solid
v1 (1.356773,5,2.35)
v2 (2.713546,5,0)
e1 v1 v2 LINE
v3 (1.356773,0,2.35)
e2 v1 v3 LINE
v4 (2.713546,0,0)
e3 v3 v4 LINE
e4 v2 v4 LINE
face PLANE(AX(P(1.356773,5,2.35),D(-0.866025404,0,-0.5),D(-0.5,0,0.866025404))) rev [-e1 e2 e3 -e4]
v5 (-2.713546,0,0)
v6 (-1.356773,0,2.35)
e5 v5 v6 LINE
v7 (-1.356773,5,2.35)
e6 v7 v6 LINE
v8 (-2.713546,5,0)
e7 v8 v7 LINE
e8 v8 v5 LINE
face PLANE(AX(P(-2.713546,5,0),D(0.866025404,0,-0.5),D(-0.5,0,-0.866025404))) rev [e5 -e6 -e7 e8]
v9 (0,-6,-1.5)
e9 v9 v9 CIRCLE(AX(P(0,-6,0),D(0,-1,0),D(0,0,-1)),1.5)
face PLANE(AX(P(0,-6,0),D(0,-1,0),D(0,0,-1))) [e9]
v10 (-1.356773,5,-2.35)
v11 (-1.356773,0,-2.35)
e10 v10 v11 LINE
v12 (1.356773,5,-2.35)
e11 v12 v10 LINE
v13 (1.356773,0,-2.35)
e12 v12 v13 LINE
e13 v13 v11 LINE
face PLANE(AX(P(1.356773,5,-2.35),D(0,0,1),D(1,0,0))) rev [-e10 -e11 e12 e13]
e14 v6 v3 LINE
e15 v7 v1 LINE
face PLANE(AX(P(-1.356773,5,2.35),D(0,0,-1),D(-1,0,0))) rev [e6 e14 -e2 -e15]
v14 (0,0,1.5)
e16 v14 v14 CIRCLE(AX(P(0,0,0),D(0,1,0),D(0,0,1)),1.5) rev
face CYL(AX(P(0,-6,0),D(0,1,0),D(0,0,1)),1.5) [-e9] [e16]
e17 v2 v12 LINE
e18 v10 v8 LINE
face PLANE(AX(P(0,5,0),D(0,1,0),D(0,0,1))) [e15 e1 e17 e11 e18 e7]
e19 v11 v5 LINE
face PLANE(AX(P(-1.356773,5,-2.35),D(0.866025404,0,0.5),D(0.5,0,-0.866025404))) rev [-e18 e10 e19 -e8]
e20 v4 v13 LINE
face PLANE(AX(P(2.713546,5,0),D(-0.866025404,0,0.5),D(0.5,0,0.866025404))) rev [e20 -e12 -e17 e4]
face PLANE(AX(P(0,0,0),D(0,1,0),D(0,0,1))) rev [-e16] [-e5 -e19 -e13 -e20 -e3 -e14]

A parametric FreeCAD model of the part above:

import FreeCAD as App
import Part
import Sketcher
Q = App.Units.Quantity

doc = App.newDocument("Part")
body = doc.addObject("PartDesign::Body", "Body")

sketch1 = doc.addObject("Sketcher::SketchObject", "Sketch")
body.addObject(sketch1)
sketch1.AttachmentSupport = (doc.XZ_Plane, [""])
sketch1.MapMode = "FlatFace"
sketch1.addGeometry([
    Part.LineSegment(App.Vector(-1.356773, -2.35, 0), App.Vector(-2.713546, 0, 0)),
    Part.LineSegment(App.Vector(-2.713546, 0, 0), App.Vector(-1.356773, 2.35, 0)),
    Part.LineSegment(App.Vector(-1.356773, 2.35, 0), App.Vector(1.356773, 2.35, 0)),
    Part.LineSegment(App.Vector(1.356773, 2.35, 0), App.Vector(2.713546, 0, 0)),
    Part.LineSegment(App.Vector(2.713546, 0, 0), App.Vector(1.356773, -2.35, 0)),
    Part.LineSegment(App.Vector(1.356773, -2.35, 0), App.Vector(-1.356773, -2.35, 0)),
], False)
sketch1.addConstraint([
    Sketcher.Constraint("Coincident", 0, 2, 1, 1),
    Sketcher.Constraint("Coincident", 1, 2, 2, 1),
    Sketcher.Constraint("Coincident", 2, 2, 3, 1),
    Sketcher.Constraint("Coincident", 3, 2, 4, 1),
    Sketcher.Constraint("Coincident", 4, 2, 5, 1),
    Sketcher.Constraint("Coincident", 5, 2, 0, 1),
    Sketcher.Constraint("Horizontal", 2),
    Sketcher.Constraint("Horizontal", 5),
    Sketcher.Constraint("Symmetric", 0, 2, 3, 2, -1, 1),
    Sketcher.Constraint("Symmetric", 1, 2, 4, 2, -1, 1),
    Sketcher.Constraint("PointOnObject", 0, 2, -1),
    Sketcher.Constraint("Parallel", 0, 3),
    Sketcher.Constraint("Vertical", 2, 2, 4, 2),
    Sketcher.Constraint("Angle", 0, Q("120 deg")),
    Sketcher.Constraint("DistanceY", 4, 2, 2, 2, Q("4.7 mm")),
    Sketcher.Constraint("DistanceX", 2, 1, 2, 2, Q("2.713546 mm")),
])
pad1 = doc.addObject("PartDesign::Pad", "Pad")
body.addObject(pad1)
pad1.Profile = sketch1
pad1.Length = 5
pad1.Reversed = True

sketch2 = doc.addObject("Sketcher::SketchObject", "Sketch001")
body.addObject(sketch2)
sketch2.AttachmentSupport = (doc.XZ_Plane, [""])
sketch2.MapMode = "FlatFace"
sketch2.addGeometry(Part.Circle(App.Vector(0, 0, 0), App.Vector(0, 0, 1), 1.5), False)
sketch2.addConstraint([
    Sketcher.Constraint("Coincident", 0, 3, -1, 1),
    Sketcher.Constraint("Diameter", 0, Q("3 mm")),
])
pad2 = doc.addObject("PartDesign::Pad", "Pad001")
body.addObject(pad2)
pad2.Profile = sketch2
pad2.Length = 6

doc.recompute()
